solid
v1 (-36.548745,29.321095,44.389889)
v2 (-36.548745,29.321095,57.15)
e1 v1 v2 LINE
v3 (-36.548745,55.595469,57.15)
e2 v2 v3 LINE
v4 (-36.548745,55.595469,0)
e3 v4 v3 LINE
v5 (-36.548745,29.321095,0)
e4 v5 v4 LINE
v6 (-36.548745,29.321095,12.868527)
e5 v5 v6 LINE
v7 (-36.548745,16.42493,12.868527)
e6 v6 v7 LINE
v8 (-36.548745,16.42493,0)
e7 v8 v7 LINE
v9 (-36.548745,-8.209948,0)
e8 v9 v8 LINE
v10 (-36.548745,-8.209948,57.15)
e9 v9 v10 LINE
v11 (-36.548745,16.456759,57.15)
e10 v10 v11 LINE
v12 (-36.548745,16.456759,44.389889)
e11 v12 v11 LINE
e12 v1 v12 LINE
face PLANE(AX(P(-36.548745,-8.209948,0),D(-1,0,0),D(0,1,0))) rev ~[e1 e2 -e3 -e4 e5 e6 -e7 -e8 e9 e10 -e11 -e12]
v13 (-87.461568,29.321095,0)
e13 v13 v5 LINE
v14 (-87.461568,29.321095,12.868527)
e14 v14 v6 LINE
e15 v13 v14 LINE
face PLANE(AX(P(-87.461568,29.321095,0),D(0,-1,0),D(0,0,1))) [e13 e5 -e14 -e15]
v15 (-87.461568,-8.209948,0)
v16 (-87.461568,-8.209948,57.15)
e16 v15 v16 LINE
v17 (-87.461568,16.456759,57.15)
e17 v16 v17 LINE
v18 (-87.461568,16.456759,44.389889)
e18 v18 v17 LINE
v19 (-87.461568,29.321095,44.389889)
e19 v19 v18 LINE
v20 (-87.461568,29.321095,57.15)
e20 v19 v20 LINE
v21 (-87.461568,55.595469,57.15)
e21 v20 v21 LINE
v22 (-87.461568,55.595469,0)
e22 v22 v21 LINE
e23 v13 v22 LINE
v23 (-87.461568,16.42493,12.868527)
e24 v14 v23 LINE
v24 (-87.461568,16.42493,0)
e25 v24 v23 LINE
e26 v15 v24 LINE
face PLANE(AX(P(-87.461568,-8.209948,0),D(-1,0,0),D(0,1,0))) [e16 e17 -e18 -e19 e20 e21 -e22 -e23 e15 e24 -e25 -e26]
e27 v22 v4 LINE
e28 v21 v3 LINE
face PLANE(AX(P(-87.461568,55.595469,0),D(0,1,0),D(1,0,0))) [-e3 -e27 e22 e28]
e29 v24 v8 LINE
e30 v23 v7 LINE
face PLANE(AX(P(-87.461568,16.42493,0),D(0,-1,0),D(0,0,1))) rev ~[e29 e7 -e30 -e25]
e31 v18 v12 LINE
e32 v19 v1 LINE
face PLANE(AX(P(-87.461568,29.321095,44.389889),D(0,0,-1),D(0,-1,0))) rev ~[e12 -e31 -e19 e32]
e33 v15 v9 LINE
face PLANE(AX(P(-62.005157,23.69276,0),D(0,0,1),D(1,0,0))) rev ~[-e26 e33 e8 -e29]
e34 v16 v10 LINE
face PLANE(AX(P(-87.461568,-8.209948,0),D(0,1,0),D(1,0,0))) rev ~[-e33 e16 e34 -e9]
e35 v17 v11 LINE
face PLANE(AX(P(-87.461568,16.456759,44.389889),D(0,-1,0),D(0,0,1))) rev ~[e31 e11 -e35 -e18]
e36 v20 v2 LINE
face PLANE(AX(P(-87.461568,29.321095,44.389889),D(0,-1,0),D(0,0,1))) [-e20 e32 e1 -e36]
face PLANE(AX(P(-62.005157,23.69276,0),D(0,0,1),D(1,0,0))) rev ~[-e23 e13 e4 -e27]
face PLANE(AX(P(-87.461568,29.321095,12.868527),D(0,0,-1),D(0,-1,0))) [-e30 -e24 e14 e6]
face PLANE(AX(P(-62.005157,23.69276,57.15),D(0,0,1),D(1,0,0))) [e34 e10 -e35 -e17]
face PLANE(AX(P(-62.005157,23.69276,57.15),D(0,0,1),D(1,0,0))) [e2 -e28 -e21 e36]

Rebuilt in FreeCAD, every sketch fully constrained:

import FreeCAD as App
import Part
import Sketcher

V = App.Vector
Q = App.Units.Quantity


def add_polygon(sketch, points):
    """Adds a closed chain of lines whose ends are joined by coincident constraints."""
    first, n = sketch.GeometryCount, len(points)
    for a, b in zip(points, points[1:] + points[:1]):
        sketch.addGeometry(Part.LineSegment(App.Vector(*a, 0), App.Vector(*b, 0)), False)
    for i in range(n):
        sketch.addConstraint(Sketcher.Constraint("Coincident", first + i, 2, first + (i + 1) % n, 1))

doc = App.newDocument("Part")
params = doc.addObject("Spreadsheet::Sheet", "Params")
for row, (alias, value) in enumerate([
    ("pad1_length", "2.25 in"),
    ("pocket1_length", "3 in"),
    ("pocket2_length", "3 in"),
], start=1):
    params.set(f"A{row}", alias)
    params.set(f"B{row}", "=" + value)
    params.setAlias(f"B{row}", alias)

body = doc.addObject("PartDesign::Body", "Body")

# Sketch on XY plane
sketch1 = body.newObject("Sketcher::SketchObject", "Sketch")
sketch1.AttachmentSupport = (doc.getObject("XY_Plane"), [""])
sketch1.MapMode = "FlatFace"
add_polygon(sketch1, [(-87, 56), (-87, -8), (-37, -8), (-37, 56)])  # lines 0-3
sketch1.addConstraint([
    Sketcher.Constraint("Vertical", 0),
    Sketcher.Constraint("Horizontal", 1),
    Sketcher.Constraint("Vertical", 2),
    Sketcher.Constraint("Horizontal", 3),
    Sketcher.Constraint("DistanceX", 1, 1, 1, 2, Q("50.912824 mm")),
    Sketcher.Constraint("DistanceY", 0, 2, 0, 1, Q("63.805417 mm")),
    Sketcher.Constraint("DistanceX", 0, 2, -1, 1, Q("87.461568 mm")),
    Sketcher.Constraint("DistanceY", 0, 2, -1, 1, Q("8.209948 mm")),
])
pad1 = body.newObject("PartDesign::Pad", "Pad")
pad1.Profile = sketch1
pad1.setExpression("Length", "Params.pad1_length")

# Sketch on YZ plane
sketch2 = body.newObject("Sketcher::SketchObject", "Sketch001")
sketch2.AttachmentSupport = (doc.getObject("YZ_Plane"), [""])
sketch2.MapMode = "FlatFace"
sketch2.AttachmentOffset = App.Placement(V(0, 0, -87.461568), App.Rotation())
add_polygon(sketch2, [(29, 57), (29, 44), (16, 44), (16, 57)])  # lines 0-3
sketch2.addConstraint([
    Sketcher.Constraint("Vertical", 0),
    Sketcher.Constraint("Horizontal", 1),
    Sketcher.Constraint("Vertical", 2),
    Sketcher.Constraint("Horizontal", 3),
    Sketcher.Constraint("DistanceY", -1, 1, 2, 2, Q("2.25 in")),
    Sketcher.Constraint("DistanceY", 0, 2, 0, 1, Q("12.760111 mm")),
    Sketcher.Constraint("DistanceX", 1, 2, 1, 1, Q("12.864336 mm")),
    Sketcher.Constraint("DistanceX", -1, 1, 1, 2, Q("16.456759 mm")),
])
pocket1 = body.newObject("PartDesign::Pocket", "Pocket")
pocket1.Profile = sketch2
pocket1.setExpression("Length", "Params.pocket1_length")
pocket1.Reversed = True

# Sketch on YZ plane
sketch3 = body.newObject("Sketcher::SketchObject", "Sketch002")
sketch3.AttachmentSupport = (doc.getObject("YZ_Plane"), [""])
sketch3.MapMode = "FlatFace"
sketch3.AttachmentOffset = App.Placement(V(0, 0, -87.461568), App.Rotation())
add_polygon(sketch3, [(29, 13), (29, 0), (16, 0), (16, 13)])  # lines 0-3
sketch3.addConstraint([
    Sketcher.Constraint("Vertical", 0),
    Sketcher.Constraint("Horizontal", 1),
    Sketcher.Constraint("Vertical", 2),
    Sketcher.Constraint("Horizontal", 3),
    Sketcher.Constraint("PointOnObject", 0, 2, -1),
    Sketcher.Constraint("DistanceX", 1, 2, 1, 1, Q("12.896165 mm")),
    Sketcher.Constraint("DistanceY", 0, 2, 0, 1, Q("12.868527 mm")),
    Sketcher.Constraint("DistanceX", -1, 1, 1, 2, Q("16.42493 mm")),
])
pocket2 = body.newObject("PartDesign::Pocket", "Pocket001")
pocket2.Profile = sketch3
pocket2.setExpression("Length", "Params.pocket2_length")
pocket2.Reversed = True

doc.recompute()
